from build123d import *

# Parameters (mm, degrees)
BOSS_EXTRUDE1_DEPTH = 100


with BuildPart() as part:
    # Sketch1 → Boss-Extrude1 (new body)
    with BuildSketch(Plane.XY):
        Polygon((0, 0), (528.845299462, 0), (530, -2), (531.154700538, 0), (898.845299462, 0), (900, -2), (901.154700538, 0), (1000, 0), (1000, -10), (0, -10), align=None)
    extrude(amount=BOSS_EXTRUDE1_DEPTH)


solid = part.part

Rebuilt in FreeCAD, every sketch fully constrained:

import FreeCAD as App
import Part
import Sketcher
from FreeCAD import Vector
Q = App.Units.Quantity


def add_polygon(sketch, points):
    """Adds a closed chain of lines whose ends are joined by coincident constraints."""
    first, n = sketch.GeometryCount, len(points)
    for a, b in zip(points, points[1:] + points[:1]):
        sketch.addGeometry(Part.LineSegment(App.Vector(*a, 0), App.Vector(*b, 0)), False)
    for i in range(n):
        sketch.addConstraint(Sketcher.Constraint("Coincident", first + i, 2, first + (i + 1) % n, 1))

doc = App.newDocument("Part")
body = doc.addObject("PartDesign::Body", "Body")

# Sketch on XY plane
sketch1 = doc.addObject("Sketcher::SketchObject", "Sketch")
body.addObject(sketch1)
sketch1.AttachmentSupport = (doc.XY_Plane, [""])
sketch1.MapMode = "FlatFace"
add_polygon(sketch1, [(528.8, 0), (0, 0), (0, -10), (1000, -10), (1000, 0), (901.2, 0), (900, -2), (898.8, 0), (531.2, 0), (530, -2)])  # lines 0-9
sketch1.addConstraint(Sketcher.Constraint("Horizontal", 0))
sketch1.addConstraint(Sketcher.Constraint("Vertical", 1))
sketch1.addConstraint(Sketcher.Constraint("Horizontal", 2))
sketch1.addConstraint(Sketcher.Constraint("Vertical", 3))
sketch1.addConstraint(Sketcher.Constraint("Horizontal", 4))
sketch1.addConstraint(Sketcher.Constraint("Horizontal", 7))
sketch1.addConstraint(Sketcher.Constraint("Coincident", 0, 2, -1, 1))
sketch1.addConstraint(Sketcher.Constraint("PointOnObject", 3, 2, -1))
sketch1.addConstraint(Sketcher.Constraint("PointOnObject", 6, 2, -1))
sketch1.addConstraint(Sketcher.Constraint("Parallel", 5, 8))
sketch1.addConstraint(Sketcher.Constraint("Parallel", 6, 9))
sketch1.addConstraint(Sketcher.Constraint("Horizontal", 5, 2, 8, 2))
sketch1.addConstraint(Sketcher.Constraint("Equal", 5, 6))
sketch1.addConstraint(Sketcher.Constraint("DistanceX", 2, 1, 2, 2, Q("1000 mm")))
sketch1.addConstraint(Sketcher.Constraint("DistanceY", 1, 2, 1, 1, Q("10 mm")))
sketch1.addConstraint(Sketcher.Constraint("Angle", 5, Q("-120 deg")))
sketch1.addConstraint(Sketcher.Constraint("DistanceX", -1, 1, 5, 2, Q("900 mm")))
sketch1.addConstraint(Sketcher.Constraint("DistanceY", 5, 2, -1, 1, Q("2 mm")))
sketch1.addConstraint(Sketcher.Constraint("DistanceX", -1, 1, 8, 2, Q("530 mm")))
pad1 = doc.addObject("PartDesign::Pad", "Pad")
body.addObject(pad1)
pad1.Profile = sketch1
pad1.Length = 100

doc.recompute()
